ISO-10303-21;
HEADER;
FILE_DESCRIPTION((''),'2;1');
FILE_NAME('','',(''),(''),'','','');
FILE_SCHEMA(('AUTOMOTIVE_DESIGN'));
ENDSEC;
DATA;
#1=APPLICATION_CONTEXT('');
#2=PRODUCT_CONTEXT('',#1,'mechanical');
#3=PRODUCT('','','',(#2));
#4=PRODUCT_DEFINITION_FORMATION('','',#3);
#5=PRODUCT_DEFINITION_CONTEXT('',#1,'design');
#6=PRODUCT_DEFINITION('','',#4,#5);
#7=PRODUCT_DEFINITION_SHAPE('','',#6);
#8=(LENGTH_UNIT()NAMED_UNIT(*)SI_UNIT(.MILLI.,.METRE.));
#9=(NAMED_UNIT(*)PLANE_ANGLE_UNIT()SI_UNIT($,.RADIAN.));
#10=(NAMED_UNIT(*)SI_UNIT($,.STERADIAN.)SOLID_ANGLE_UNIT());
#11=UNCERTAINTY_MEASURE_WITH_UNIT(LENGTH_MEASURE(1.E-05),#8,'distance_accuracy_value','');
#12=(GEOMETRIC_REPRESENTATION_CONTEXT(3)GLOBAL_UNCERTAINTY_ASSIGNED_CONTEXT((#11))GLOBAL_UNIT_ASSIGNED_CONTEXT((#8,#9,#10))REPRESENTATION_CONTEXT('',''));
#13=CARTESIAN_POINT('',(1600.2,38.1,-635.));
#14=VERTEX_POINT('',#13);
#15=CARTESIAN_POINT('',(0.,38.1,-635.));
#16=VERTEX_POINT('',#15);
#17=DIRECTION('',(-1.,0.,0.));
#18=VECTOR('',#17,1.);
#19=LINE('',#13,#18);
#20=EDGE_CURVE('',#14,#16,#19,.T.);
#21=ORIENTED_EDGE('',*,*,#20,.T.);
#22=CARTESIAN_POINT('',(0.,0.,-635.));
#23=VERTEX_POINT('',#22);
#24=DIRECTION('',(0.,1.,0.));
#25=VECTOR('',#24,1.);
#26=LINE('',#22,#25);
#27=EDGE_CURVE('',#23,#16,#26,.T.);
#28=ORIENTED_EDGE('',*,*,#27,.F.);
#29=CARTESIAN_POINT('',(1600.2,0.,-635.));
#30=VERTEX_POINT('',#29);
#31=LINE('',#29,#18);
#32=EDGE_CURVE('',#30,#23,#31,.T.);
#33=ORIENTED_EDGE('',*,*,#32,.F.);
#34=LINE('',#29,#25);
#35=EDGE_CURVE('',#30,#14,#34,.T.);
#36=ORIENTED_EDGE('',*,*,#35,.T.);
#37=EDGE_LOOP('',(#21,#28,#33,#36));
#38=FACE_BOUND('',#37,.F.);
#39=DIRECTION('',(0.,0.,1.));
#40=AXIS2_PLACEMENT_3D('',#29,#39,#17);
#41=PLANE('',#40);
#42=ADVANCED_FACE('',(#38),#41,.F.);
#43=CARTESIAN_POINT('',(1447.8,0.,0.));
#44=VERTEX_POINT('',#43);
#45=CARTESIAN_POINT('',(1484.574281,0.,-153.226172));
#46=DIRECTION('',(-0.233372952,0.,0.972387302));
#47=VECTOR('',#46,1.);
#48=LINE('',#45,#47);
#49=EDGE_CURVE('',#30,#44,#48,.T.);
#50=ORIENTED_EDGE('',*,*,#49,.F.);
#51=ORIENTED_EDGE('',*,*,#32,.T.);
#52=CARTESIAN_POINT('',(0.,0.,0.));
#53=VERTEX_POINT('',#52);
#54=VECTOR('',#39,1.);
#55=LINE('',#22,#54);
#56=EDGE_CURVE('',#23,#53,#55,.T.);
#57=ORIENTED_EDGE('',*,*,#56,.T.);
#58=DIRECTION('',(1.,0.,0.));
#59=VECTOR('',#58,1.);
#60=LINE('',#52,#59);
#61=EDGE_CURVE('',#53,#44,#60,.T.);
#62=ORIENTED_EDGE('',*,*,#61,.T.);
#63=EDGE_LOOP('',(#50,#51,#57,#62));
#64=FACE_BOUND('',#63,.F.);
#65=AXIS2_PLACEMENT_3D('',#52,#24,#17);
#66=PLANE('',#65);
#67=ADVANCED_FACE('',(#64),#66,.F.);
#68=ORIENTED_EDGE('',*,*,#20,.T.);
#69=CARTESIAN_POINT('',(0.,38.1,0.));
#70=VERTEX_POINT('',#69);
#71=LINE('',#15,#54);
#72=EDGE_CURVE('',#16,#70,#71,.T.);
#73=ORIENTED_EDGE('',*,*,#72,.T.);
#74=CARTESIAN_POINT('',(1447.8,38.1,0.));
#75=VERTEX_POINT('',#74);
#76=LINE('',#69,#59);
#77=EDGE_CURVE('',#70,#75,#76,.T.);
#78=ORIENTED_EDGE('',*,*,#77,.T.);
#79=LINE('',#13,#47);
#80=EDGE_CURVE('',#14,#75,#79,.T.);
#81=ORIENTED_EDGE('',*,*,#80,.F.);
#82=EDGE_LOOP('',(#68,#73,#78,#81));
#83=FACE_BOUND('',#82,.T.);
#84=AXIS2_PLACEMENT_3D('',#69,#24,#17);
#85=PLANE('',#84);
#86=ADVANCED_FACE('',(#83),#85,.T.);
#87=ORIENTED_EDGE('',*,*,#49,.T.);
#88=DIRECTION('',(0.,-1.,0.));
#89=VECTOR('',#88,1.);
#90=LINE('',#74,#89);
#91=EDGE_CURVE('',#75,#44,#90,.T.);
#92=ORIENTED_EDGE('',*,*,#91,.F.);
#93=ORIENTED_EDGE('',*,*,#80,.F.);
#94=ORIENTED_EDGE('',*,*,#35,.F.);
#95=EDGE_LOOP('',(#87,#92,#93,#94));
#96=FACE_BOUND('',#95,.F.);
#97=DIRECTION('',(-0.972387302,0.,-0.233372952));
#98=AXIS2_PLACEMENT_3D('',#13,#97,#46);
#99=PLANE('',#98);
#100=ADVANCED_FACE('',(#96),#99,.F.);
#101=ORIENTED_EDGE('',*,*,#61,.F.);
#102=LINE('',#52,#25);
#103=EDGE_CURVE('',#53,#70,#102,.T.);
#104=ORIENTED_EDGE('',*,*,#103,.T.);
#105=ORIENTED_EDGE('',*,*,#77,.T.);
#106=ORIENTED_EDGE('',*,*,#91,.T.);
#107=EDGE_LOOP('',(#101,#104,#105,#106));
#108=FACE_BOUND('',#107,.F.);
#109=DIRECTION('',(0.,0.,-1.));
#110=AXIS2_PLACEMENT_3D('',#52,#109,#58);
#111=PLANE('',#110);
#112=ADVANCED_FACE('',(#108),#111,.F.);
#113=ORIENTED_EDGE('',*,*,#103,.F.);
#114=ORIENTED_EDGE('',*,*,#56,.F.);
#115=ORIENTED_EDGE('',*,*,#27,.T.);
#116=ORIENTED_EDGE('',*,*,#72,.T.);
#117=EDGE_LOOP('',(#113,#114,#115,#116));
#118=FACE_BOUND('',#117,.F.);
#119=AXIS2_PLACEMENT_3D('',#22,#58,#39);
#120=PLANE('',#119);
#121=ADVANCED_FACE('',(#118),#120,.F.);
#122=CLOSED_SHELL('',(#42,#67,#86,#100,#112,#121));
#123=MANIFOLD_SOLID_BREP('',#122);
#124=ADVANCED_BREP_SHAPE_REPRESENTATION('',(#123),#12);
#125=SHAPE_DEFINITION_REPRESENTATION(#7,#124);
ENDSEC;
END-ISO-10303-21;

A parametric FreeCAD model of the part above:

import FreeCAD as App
import Part
import Sketcher
from FreeCAD import Vector
Q = App.Units.Quantity


def add_polygon(sketch, points):
    """Adds a closed chain of lines whose ends are joined by coincident constraints."""
    first, n = sketch.GeometryCount, len(points)
    for a, b in zip(points, points[1:] + points[:1]):
        sketch.addGeometry(Part.LineSegment(App.Vector(*a, 0), App.Vector(*b, 0)), False)
    for i in range(n):
        sketch.addConstraint(Sketcher.Constraint("Coincident", first + i, 2, first + (i + 1) % n, 1))

doc = App.newDocument("Part")
params = doc.addObject("Spreadsheet::Sheet", "Params")
for row, (alias, value) in enumerate([
    ("sketch1_width", "63 in"),
    ("sketch1_height", "25 in"),
    ("pad1_length", "1.5 in"),
    ("sketch2_width", "6 in"),
    ("sketch2_height", "25 in"),
], start=1):
    params.set(f"A{row}", alias)
    params.set(f"B{row}", "=" + value)
    params.setAlias(f"B{row}", alias)

body = doc.addObject("PartDesign::Body", "Body")

sketch1 = doc.addObject("Sketcher::SketchObject", "Sketch")
body.addObject(sketch1)
sketch1.AttachmentSupport = (doc.XZ_Plane, [""])
sketch1.MapMode = "FlatFace"
add_polygon(sketch1, [(0, -635), (0, 0), (1600, 0), (1600, -635)])
sketch1.addConstraint(Sketcher.Constraint("Vertical", 0))
sketch1.addConstraint(Sketcher.Constraint("Horizontal", 1))
sketch1.addConstraint(Sketcher.Constraint("Vertical", 2))
sketch1.addConstraint(Sketcher.Constraint("Horizontal", 3))
sketch1.addConstraint(Sketcher.Constraint("Coincident", 0, 2, -1, 1))
sketch1.addConstraint(Sketcher.Constraint("DistanceX", 1, 1, 1, 2, Q("63 in")))
sketch1.addConstraint(Sketcher.Constraint("DistanceY", 0, 1, 0, 2, Q("25 in")))
sketch1.setExpression("Constraints[9]", "Params.sketch1_width")
sketch1.setExpression("Constraints[10]", "Params.sketch1_height")
pad1 = doc.addObject("PartDesign::Pad", "Pad")
body.addObject(pad1)
pad1.Profile = sketch1
pad1.setExpression("Length", "Params.pad1_length")
pad1.Reversed = True

sketch2 = doc.addObject("Sketcher::SketchObject", "Sketch001")
body.addObject(sketch2)
sketch2.AttachmentSupport = (doc.XZ_Plane, [""])
sketch2.MapMode = "FlatFace"
sketch2.AttachmentOffset = App.Placement(Vector(0, 0, -1.5 * 25.4), App.Rotation())
add_polygon(sketch2, [(1448, 0), (1600, 0), (1600, -635)])
sketch2.addConstraint(Sketcher.Constraint("Horizontal", 0))
sketch2.addConstraint(Sketcher.Constraint("Vertical", 1))
sketch2.addConstraint(Sketcher.Constraint("PointOnObject", 0, 2, -1))
sketch2.addConstraint(Sketcher.Constraint("DistanceX", 0, 1, 0, 2, Q("6 in")))
sketch2.addConstraint(Sketcher.Constraint("DistanceY", 1, 2, 1, 1, Q("25 in")))
sketch2.addConstraint(Sketcher.Constraint("DistanceX", -1, 1, 0, 2, Q("63 in")))
sketch2.setExpression("Constraints[6]", "Params.sketch2_width")
sketch2.setExpression("Constraints[7]", "Params.sketch2_height")
pocket1 = doc.addObject("PartDesign::Pocket", "Pocket")
body.addObject(pocket1)
pocket1.Profile = sketch2
pocket1.Type = "ThroughAll"
pocket1.Reversed = True

doc.recompute()
